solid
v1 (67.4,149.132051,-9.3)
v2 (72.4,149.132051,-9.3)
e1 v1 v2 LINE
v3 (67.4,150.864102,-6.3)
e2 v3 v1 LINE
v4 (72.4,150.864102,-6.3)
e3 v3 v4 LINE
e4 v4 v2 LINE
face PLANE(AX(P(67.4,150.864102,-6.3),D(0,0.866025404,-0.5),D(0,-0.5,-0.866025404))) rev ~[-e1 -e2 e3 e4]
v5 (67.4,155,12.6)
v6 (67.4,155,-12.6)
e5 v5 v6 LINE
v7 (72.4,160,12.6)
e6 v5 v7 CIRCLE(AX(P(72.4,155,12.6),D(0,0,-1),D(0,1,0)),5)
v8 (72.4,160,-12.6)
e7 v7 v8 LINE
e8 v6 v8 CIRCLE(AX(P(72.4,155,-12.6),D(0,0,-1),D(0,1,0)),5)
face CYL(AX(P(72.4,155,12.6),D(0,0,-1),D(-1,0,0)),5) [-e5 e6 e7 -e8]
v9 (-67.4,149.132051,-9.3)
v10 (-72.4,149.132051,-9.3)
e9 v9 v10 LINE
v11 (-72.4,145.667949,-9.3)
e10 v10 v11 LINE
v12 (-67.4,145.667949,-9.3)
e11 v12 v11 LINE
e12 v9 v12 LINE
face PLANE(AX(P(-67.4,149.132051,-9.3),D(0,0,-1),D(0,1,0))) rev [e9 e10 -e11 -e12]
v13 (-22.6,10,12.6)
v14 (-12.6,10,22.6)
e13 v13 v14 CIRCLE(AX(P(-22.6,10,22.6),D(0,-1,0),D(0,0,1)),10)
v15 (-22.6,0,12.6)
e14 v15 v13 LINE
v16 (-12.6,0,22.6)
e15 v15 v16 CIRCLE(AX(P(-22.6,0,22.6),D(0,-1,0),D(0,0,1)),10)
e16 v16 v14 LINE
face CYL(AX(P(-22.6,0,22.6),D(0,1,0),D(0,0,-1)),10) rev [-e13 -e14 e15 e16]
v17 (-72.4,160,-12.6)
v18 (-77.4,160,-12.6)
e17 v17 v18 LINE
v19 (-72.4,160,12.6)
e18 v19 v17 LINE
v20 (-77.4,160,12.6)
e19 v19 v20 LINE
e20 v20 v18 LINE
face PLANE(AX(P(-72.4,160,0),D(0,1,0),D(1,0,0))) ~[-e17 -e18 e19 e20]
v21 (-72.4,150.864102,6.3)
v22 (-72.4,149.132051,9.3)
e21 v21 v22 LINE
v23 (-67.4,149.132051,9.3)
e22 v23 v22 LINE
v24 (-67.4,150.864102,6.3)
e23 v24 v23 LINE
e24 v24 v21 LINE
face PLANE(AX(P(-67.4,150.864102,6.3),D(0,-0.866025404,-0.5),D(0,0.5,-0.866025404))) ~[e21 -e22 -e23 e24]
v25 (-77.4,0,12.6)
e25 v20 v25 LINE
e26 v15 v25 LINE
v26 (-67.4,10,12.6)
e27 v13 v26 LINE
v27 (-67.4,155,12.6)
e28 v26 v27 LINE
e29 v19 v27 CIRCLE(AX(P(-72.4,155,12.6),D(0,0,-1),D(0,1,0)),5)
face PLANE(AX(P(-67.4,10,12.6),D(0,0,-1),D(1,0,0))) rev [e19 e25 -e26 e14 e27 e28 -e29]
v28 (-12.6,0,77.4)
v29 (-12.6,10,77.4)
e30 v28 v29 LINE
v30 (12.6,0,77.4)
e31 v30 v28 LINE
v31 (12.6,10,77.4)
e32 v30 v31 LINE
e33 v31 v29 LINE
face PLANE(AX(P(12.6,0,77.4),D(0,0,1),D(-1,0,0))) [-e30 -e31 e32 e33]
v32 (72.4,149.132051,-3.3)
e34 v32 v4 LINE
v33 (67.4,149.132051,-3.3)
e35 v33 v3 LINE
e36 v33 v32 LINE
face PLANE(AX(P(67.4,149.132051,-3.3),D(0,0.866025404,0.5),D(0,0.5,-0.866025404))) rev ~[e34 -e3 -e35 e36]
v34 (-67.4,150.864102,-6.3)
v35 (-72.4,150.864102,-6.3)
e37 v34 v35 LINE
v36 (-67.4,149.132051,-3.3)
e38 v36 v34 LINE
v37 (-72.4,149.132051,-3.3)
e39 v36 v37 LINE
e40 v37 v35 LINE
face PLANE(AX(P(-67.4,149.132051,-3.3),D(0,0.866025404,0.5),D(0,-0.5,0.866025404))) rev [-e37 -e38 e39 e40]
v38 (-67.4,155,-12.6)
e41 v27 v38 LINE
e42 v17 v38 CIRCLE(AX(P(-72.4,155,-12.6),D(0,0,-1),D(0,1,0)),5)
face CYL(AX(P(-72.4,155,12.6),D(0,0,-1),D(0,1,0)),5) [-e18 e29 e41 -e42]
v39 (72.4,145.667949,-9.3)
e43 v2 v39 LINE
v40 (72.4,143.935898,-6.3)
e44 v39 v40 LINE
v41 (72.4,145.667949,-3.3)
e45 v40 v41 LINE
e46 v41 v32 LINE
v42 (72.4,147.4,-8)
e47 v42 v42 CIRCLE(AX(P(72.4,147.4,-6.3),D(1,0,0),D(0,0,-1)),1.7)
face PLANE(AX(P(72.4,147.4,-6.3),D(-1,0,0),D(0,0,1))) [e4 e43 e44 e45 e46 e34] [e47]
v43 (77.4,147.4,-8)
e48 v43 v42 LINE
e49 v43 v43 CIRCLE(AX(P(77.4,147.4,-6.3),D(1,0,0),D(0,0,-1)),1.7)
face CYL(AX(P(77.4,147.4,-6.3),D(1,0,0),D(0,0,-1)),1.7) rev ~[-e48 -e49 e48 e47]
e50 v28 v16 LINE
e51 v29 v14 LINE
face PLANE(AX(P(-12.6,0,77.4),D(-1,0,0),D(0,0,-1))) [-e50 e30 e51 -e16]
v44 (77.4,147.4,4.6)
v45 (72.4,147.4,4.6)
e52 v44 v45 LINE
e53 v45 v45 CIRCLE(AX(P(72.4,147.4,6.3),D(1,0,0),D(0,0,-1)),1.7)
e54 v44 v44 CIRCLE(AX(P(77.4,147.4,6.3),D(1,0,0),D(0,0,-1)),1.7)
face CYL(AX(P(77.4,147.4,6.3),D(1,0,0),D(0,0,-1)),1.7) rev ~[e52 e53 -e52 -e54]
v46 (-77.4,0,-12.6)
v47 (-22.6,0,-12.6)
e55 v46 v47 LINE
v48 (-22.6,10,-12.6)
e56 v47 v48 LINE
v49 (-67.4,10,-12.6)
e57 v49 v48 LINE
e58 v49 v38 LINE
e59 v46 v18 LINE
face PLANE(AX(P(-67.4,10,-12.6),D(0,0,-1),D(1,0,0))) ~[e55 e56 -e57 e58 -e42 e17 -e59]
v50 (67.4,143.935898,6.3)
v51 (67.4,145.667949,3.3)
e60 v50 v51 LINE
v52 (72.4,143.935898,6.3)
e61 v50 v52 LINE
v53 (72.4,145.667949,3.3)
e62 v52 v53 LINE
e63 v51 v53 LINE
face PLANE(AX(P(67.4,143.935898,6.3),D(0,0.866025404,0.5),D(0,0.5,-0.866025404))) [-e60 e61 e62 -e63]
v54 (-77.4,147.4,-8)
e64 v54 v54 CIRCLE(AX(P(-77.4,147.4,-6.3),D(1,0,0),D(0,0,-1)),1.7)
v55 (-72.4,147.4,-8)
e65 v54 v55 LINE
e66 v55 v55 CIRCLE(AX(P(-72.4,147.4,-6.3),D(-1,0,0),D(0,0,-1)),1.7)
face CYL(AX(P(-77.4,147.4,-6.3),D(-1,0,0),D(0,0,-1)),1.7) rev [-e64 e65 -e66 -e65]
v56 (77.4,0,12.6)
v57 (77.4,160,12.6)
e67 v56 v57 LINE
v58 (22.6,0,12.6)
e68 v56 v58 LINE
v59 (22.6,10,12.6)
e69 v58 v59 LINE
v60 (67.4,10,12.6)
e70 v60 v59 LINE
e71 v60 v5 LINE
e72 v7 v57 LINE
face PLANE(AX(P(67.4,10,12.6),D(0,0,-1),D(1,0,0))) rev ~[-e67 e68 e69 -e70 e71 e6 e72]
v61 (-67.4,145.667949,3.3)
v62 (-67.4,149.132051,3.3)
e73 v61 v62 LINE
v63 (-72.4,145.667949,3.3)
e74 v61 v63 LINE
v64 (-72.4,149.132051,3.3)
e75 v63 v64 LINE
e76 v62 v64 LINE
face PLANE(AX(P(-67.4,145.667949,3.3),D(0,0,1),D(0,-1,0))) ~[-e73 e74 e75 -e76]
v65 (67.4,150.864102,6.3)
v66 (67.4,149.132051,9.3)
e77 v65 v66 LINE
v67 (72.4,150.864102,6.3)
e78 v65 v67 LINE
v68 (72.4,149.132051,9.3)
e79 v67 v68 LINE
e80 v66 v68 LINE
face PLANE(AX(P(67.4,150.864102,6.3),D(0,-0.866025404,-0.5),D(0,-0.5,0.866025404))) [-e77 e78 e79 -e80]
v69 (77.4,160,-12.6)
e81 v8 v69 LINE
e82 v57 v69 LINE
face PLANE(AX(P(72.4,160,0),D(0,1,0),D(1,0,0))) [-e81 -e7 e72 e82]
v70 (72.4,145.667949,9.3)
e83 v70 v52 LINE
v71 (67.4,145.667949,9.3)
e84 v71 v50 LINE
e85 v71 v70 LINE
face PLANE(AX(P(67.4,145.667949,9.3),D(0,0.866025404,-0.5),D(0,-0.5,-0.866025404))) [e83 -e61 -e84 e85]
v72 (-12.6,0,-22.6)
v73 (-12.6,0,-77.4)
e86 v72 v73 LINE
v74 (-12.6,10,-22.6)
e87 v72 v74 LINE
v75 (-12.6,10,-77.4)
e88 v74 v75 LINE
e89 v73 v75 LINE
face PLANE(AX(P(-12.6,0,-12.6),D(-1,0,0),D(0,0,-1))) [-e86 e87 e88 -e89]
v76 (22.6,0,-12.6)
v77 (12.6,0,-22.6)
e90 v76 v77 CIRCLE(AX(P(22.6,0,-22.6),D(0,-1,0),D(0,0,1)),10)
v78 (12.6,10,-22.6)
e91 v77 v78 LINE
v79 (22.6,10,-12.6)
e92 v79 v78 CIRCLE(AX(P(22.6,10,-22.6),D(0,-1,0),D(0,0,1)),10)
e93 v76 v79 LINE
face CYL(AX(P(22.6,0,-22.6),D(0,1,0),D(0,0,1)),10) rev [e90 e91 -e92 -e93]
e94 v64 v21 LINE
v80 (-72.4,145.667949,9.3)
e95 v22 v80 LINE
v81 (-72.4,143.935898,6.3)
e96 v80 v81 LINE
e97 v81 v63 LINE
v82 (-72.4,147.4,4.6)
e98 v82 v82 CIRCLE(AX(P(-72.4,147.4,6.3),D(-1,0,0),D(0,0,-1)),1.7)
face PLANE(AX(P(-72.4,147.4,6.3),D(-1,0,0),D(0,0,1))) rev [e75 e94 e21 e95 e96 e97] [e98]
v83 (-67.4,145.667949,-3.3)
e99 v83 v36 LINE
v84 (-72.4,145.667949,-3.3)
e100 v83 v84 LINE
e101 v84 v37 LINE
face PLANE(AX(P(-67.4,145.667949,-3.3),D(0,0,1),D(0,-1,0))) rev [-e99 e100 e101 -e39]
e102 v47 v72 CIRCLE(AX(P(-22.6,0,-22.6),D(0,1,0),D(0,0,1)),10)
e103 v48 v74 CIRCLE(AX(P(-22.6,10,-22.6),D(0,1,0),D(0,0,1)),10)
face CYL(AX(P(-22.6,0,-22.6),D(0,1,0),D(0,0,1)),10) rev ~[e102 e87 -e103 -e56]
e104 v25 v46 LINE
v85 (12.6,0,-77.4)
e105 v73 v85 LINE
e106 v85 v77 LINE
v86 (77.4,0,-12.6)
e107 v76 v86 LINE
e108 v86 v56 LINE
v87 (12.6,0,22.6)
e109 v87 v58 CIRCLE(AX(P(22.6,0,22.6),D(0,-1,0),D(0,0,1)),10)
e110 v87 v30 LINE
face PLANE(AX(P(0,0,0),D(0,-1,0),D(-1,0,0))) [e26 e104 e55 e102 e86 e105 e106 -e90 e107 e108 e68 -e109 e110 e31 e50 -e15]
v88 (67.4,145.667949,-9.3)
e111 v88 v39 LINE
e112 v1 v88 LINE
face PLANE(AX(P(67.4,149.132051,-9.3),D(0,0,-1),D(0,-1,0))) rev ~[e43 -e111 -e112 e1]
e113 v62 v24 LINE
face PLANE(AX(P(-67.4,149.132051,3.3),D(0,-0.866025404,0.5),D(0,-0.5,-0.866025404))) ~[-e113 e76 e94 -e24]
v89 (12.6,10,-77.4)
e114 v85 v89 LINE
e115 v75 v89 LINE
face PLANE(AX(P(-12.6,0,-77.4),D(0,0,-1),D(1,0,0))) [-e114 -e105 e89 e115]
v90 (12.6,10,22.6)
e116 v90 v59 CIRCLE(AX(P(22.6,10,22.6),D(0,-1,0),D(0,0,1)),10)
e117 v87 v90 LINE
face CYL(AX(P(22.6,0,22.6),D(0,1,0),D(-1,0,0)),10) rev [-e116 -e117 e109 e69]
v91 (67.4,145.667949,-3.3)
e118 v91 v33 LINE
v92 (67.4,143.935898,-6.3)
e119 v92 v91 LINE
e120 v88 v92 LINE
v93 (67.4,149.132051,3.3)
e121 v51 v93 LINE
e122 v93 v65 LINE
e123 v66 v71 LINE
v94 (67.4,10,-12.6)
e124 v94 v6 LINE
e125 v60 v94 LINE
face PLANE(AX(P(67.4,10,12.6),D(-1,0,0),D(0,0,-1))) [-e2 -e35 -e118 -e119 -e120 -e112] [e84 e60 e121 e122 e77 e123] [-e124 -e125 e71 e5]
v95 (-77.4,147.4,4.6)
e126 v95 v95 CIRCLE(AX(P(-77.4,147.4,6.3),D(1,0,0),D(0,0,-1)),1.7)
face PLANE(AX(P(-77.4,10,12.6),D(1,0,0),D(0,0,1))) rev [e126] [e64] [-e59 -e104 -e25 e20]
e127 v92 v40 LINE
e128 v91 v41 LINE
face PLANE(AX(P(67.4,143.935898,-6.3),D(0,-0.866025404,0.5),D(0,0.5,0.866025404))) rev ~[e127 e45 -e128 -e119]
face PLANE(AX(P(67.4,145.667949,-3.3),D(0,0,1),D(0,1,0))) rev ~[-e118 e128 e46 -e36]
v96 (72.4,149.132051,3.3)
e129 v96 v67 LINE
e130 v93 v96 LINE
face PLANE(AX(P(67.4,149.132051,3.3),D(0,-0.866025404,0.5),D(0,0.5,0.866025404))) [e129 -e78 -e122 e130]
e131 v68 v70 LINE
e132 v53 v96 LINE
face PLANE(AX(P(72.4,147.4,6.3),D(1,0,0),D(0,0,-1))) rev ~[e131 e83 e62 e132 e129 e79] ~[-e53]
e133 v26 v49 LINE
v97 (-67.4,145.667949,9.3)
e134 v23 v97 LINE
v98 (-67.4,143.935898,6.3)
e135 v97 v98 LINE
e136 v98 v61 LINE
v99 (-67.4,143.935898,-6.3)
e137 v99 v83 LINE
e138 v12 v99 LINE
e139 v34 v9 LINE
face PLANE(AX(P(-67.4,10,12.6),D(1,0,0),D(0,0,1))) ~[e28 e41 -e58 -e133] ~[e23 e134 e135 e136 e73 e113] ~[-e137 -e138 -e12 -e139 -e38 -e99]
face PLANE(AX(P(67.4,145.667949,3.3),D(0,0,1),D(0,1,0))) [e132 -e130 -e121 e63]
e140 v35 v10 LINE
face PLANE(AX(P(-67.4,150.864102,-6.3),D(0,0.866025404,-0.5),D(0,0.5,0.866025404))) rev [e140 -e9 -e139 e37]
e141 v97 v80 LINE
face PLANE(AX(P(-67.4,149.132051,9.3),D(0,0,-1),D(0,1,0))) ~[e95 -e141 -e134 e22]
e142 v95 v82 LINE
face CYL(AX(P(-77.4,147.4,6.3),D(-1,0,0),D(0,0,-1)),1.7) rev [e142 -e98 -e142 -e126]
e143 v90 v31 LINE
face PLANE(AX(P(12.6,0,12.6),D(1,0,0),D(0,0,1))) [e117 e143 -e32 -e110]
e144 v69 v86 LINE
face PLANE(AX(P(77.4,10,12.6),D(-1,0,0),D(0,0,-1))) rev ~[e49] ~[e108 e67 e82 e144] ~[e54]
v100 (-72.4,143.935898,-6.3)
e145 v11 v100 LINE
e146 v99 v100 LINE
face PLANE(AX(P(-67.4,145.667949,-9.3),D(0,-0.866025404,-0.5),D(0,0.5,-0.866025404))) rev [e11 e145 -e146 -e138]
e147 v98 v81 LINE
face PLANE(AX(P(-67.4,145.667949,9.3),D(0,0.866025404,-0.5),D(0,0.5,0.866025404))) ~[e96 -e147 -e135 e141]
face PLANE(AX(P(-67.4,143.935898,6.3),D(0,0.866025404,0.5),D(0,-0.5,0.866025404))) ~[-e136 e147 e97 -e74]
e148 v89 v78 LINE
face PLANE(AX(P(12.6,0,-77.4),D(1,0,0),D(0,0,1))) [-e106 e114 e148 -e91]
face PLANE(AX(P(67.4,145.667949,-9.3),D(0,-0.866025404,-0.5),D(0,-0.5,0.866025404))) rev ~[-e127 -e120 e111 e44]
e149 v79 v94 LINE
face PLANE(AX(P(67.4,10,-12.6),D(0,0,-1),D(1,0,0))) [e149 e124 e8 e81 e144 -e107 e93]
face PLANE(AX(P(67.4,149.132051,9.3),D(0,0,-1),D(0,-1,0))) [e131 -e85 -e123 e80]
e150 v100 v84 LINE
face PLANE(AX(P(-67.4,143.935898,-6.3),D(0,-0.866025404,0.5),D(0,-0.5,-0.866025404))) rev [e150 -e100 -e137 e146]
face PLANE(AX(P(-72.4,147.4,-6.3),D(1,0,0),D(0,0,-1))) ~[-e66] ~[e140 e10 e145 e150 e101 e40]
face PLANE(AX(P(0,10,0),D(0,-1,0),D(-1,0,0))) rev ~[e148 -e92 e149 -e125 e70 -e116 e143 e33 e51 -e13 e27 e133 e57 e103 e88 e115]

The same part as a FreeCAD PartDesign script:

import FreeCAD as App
import Part
import Sketcher
Q = App.Units.Quantity


def edges_at(feature, points):
    """Names of the edges that pass closest to the given points."""
    edges = feature.Shape.Edges
    near = lambda p: min(range(len(edges)), key=lambda i: edges[i].distToShape(Part.Vertex(*p))[0])
    return sorted({f"Edge{near(p) + 1}" for p in points})


def add_polygon(sketch, points):
    """Adds a closed chain of lines whose ends are joined by coincident constraints."""
    first, n = sketch.GeometryCount, len(points)
    for a, b in zip(points, points[1:] + points[:1]):
        sketch.addGeometry(Part.LineSegment(App.Vector(*a, 0), App.Vector(*b, 0)), False)
    for i in range(n):
        sketch.addConstraint(Sketcher.Constraint("Coincident", first + i, 2, first + (i + 1) % n, 1))

doc = App.newDocument("Part")
params = doc.addObject("Spreadsheet::Sheet", "Params")
for row, (alias, value) in enumerate([
    ("sketch1_width", "64.8 mm"),
    ("sketch1_width2", "25.2 mm"),
    ("pad1_length", "10 mm"),
    ("sketch2_width", "10 mm"),
    ("sketch2_height", "25.2 mm"),
    ("pad2_length", "150 mm"),
    ("sketch3_diameter", "3.4 mm"),
    ("pocket2_length", "5 mm"),
    ("fillet_radius", "10 mm"),
    ("fillet2_radius", "5 mm"),
], start=1):
    params.set(f"A{row}", alias)
    params.set(f"B{row}", "=" + value)
    params.setAlias(f"B{row}", alias)

body = doc.addObject("PartDesign::Body", "Body")

sketch1 = body.newObject("Sketcher::SketchObject", "Sketch")
sketch1.AttachmentSupport = (doc.getObject("XZ_Plane"), [""])
sketch1.MapMode = "FlatFace"
add_polygon(sketch1, [(77, -13), (13, -13), (13, -77), (-13, -77), (-13, -13), (-77, -13), (-77, 13), (-13, 13), (-13, 77), (13, 77), (13, 13), (77, 13)])
sketch1.addConstraint([
    Sketcher.Constraint("Horizontal", 0),
    Sketcher.Constraint("Vertical", 1),
    Sketcher.Constraint("Horizontal", 2),
    Sketcher.Constraint("Vertical", 3),
    Sketcher.Constraint("Horizontal", 4),
    Sketcher.Constraint("Vertical", 5),
    Sketcher.Constraint("Horizontal", 6),
    Sketcher.Constraint("Vertical", 7),
    Sketcher.Constraint("Horizontal", 8),
    Sketcher.Constraint("Vertical", 9),
    Sketcher.Constraint("Horizontal", 10),
    Sketcher.Constraint("Vertical", 11),
    Sketcher.Constraint("Symmetric", 0, 2, 6, 2, -1, 1),
    Sketcher.Constraint("Symmetric", 2, 2, 8, 2, -1, 1),
    Sketcher.Constraint("Symmetric", 4, 2, 10, 2, -1, 1),
    Sketcher.Constraint("Symmetric", 0, 2, 3, 2, -2),
    Sketcher.Constraint("Equal", 10, 1),
    Sketcher.Constraint("Equal", 8, 5),
    Sketcher.Constraint("DistanceX", 0, 2, 0, 1, Q("64.8 mm")),
    Sketcher.Constraint("DistanceX", 2, 2, 2, 1, Q("25.2 mm")),
])
sketch1.setExpression("Constraints[30]", "Params.sketch1_width")
sketch1.setExpression("Constraints[31]", "Params.sketch1_width2")
pad1 = body.newObject("PartDesign::Pad", "Pad")
pad1.Profile = sketch1
pad1.setExpression("Length", "Params.pad1_length")
pad1.Reversed = True

sketch2 = body.newObject("Sketcher::SketchObject", "Sketch001")
sketch2.AttachmentSupport = (doc.getObject("XZ_Plane"), [""])
sketch2.MapMode = "FlatFace"
sketch2.AttachmentOffset = App.Placement(App.Vector(0, 0, -10), App.Rotation())
add_polygon(sketch2, [(67, -13), (67, 13), (77, 13), (77, -13)])
sketch2.addConstraint([
    Sketcher.Constraint("Vertical", 0),
    Sketcher.Constraint("Horizontal", 1),
    Sketcher.Constraint("Vertical", 2),
    Sketcher.Constraint("Horizontal", 3),
    Sketcher.Constraint("DistanceX", 1, 1, 1, 2, Q("10 mm")),
    Sketcher.Constraint("DistanceY", 0, 1, 0, 2, Q("25.2 mm")),
    Sketcher.Constraint("DistanceX", -1, 1, 0, 2, Q("67.4 mm")),
    Sketcher.Constraint("DistanceY", -1, 1, 0, 2, Q("12.6 mm")),
])
sketch2.setExpression("Constraints[8]", "Params.sketch2_width")
sketch2.setExpression("Constraints[9]", "Params.sketch2_height")
pad2 = body.newObject("PartDesign::Pad", "Pad001")
pad2.Profile = sketch2
pad2.setExpression("Length", "Params.pad2_length")
pad2.Reversed = True

sketch3 = body.newObject("Sketcher::SketchObject", "Sketch002")
sketch3.AttachmentSupport = (doc.getObject("YZ_Plane"), [""])
sketch3.MapMode = "FlatFace"
sketch3.AttachmentOffset = App.Placement(App.Vector(0, 0, 77.4), App.Rotation())
sketch3.addGeometry([
    Part.Circle(App.Vector(147.4, 6.3, 0), App.Vector(0, 0, 1), 1.7),
    Part.Circle(App.Vector(147.4, -6.3, 0), App.Vector(0, 0, 1), 1.7),
], False)
sketch3.addConstraint([
    Sketcher.Constraint("Equal", 0, 1),
    Sketcher.Constraint("Symmetric", 0, 3, 1, 3, -1),
    Sketcher.Constraint("Diameter", 0, Q("3.4 mm")),
    Sketcher.Constraint("DistanceX", -1, 1, 0, 3, Q("147.4 mm")),
    Sketcher.Constraint("DistanceY", -1, 1, 0, 3, Q("6.3 mm")),
])
sketch3.setExpression("Constraints[2]", "Params.sketch3_diameter")
pocket1 = body.newObject("PartDesign::Pocket", "Pocket")
pocket1.Profile = sketch3
pocket1.Type = "ThroughAll"

sketch4 = body.newObject("Sketcher::SketchObject", "Sketch003")
sketch4.AttachmentSupport = (doc.getObject("YZ_Plane"), [""])
sketch4.MapMode = "FlatFace"
sketch4.AttachmentOffset = App.Placement(App.Vector(0, 0, 67.4), App.Rotation())
add_polygon(sketch4, [(143.9, -6.3), (145.7, -3.3), (149.1, -3.3), (150.9, -6.3), (149.1, -9.3), (145.7, -9.3)])
add_polygon(sketch4, [(143.9, 6.3), (145.7, 9.3), (149.1, 9.3), (150.9, 6.3), (149.1, 3.3), (145.7, 3.3)])
sketch4.addConstraint([
    Sketcher.Constraint("Horizontal", 1),
    Sketcher.Constraint("Horizontal", 4),
    Sketcher.Constraint("Horizontal", 7),
    Sketcher.Constraint("Horizontal", 10),
    Sketcher.Constraint("Symmetric", 4, 2, 6, 2, -1),
    Sketcher.Constraint("Symmetric", 2, 2, 8, 2, -1),
    Sketcher.Constraint("Symmetric", 1, 2, 9, 2, -1),
    Sketcher.Constraint("Symmetric", 5, 2, 11, 2, -1),
    Sketcher.Constraint("Parallel", 0, 3),
    Sketcher.Constraint("Parallel", 2, 5),
    Sketcher.Constraint("Parallel", 3, 6),
    Sketcher.Constraint("Parallel", 5, 8),
    Sketcher.Constraint("Parallel", 8, 11),
    Sketcher.Constraint("Horizontal", 2, 2, 5, 2),
    Sketcher.Constraint("Vertical", 1, 2, 3, 2),
    Sketcher.Constraint("Angle", 0, Q("60 deg")),
    Sketcher.Constraint("DistanceY", 2, 2, 1, 2, Q("3 mm")),
    Sketcher.Constraint("DistanceY", 0, 2, -1, 1, Q("3.3 mm")),
    Sketcher.Constraint("DistanceX", 1, 1, 1, 2, Q("3.464102 mm")),
    Sketcher.Constraint("DistanceX", -1, 1, 2, 2, Q("150.864102 mm")),
])
pocket2 = body.newObject("PartDesign::Pocket", "Pocket001")
pocket2.Profile = sketch4
pocket2.setExpression("Length", "Params.pocket2_length")
pocket2.Reversed = True
doc.recompute()

mirrored = body.newObject("PartDesign::Mirrored", "Mirrored")
mirrored.Originals = [pad2, pocket1, pocket2]
mirrored.MirrorPlane = (doc.getObject("YZ_Plane"), [""])
body.Tip = mirrored
doc.recompute()

fillet = body.newObject("PartDesign::Fillet", "Fillet")
fillet.Base = (mirrored, edges_at(mirrored, [
    (12.6, 5, 12.6),
    (-12.6, 5, 12.6),
    (-12.6, 5, -12.6),
    (12.6, 5, -12.6),
]))
fillet.setExpression("Radius", "Params.fillet_radius")
doc.recompute()

fillet2 = body.newObject("PartDesign::Fillet", "Fillet001")
fillet2.Base = (fillet, edges_at(fillet, [(67.4, 160, 0), (-67.4, 160, 0)]))
fillet2.setExpression("Radius", "Params.fillet2_radius")

doc.recompute()
